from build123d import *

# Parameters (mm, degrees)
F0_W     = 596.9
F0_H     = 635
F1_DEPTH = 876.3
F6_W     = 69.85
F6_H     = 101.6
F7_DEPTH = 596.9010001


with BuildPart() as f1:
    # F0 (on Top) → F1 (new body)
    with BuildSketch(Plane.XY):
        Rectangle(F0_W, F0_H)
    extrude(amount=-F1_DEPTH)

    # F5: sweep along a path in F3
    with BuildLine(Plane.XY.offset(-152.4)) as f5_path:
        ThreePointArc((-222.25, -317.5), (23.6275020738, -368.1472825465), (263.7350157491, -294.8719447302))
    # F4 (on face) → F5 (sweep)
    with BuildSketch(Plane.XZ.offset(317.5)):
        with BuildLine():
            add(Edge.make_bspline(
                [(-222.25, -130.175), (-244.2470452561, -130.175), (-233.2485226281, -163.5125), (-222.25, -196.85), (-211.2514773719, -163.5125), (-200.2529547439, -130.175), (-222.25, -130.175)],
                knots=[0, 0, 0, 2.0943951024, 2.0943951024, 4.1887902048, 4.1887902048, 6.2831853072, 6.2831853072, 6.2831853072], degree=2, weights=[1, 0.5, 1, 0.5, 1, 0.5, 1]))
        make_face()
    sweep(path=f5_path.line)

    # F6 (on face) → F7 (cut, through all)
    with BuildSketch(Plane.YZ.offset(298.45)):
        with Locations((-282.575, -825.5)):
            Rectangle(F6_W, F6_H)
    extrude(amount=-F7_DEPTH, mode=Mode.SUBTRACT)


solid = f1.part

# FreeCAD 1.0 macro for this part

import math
import FreeCAD as App
import Part
import Sketcher
from FreeCAD import Vector
Q = App.Units.Quantity

doc = App.newDocument("Part")
body = doc.addObject("PartDesign::Body", "Body")

sketch1 = body.newObject("Sketcher::SketchObject", "Sketch")
sketch1.AttachmentSupport = (doc.getObject("XY_Plane"), [""])
sketch1.MapMode = "FlatFace"
sketch1.addGeometry([
    Part.LineSegment(Vector(-298, 318, 0), Vector(-298, -318, 0)),
    Part.LineSegment(Vector(-298, -318, 0), Vector(298, -318, 0)),
    Part.LineSegment(Vector(298, -318, 0), Vector(298, 318, 0)),
    Part.LineSegment(Vector(298, 318, 0), Vector(-298, 318, 0)),
], False)
sketch1.addConstraint([
    Sketcher.Constraint("Coincident", 0, 2, 1, 1),
    Sketcher.Constraint("Coincident", 1, 2, 2, 1),
    Sketcher.Constraint("Coincident", 2, 2, 3, 1),
    Sketcher.Constraint("Coincident", 3, 2, 0, 1),
    Sketcher.Constraint("Vertical", 0),
    Sketcher.Constraint("Horizontal", 1),
    Sketcher.Constraint("Vertical", 2),
    Sketcher.Constraint("Horizontal", 3),
    Sketcher.Constraint("Symmetric", 0, 2, 2, 2, -1, 1),
    Sketcher.Constraint("DistanceY", 0, 2, 0, 1, Q("25 in")),
    Sketcher.Constraint("DistanceX", 1, 1, 1, 2, Q("23.5 in")),
])
pad1 = body.newObject("PartDesign::Pad", "Pad")
pad1.Profile = sketch1
pad1.Length = Q("34.5 in")
pad1.Reversed = True

sketch2 = body.newObject("Sketcher::SketchObject", "Sketch001")
sketch2.AttachmentSupport = (doc.getObject("XZ_Plane"), [""])
sketch2.MapMode = "FlatFace"
sketch2.AttachmentOffset = App.Placement(Vector(0, 0, 12.5 * 25.4), App.Rotation())
sketch2.addGeometry(Part.BSplineCurve([Vector(-222.25, -130.175, 0), Vector(-244.247045, -130.175, 0), Vector(-233.248523, -163.5125, 0), Vector(-222.25, -196.85, 0), Vector(-211.251477, -163.5125, 0), Vector(-200.252955, -130.175, 0), Vector(-222.25, -130.175, 0)], [3, 2, 2, 3], [0, 2.094395102, 4.188790205, 6.283185307], False, 2, [1, 0.5, 1, 0.5, 1, 0.5, 1], False), False)
sketch2.addConstraint(Sketcher.Constraint("Block", 0))

sketch3 = body.newObject("Sketcher::SketchObject", "Sketch002")
sketch3.AttachmentSupport = (doc.getObject("XY_Plane"), [""])
sketch3.MapMode = "FlatFace"
sketch3.AttachmentOffset = App.Placement(Vector(0, 0, -6 * 25.4), App.Rotation())
sketch3.addGeometry(Part.ArcOfCircle(Part.Circle(Vector(0, 139, 0), Vector(0, 0, 1), 508), math.radians(-116), math.radians(-59)), False)
sketch3.addConstraint([
    Sketcher.Constraint("PointOnObject", 0, 3, -2),
    Sketcher.Constraint("Radius", 0, Q("20 in")),
    Sketcher.Constraint("DistanceY", 0, 1, -1, 1, Q("12.5 in")),
    Sketcher.Constraint("DistanceX", 0, 1, -1, 1, Q("8.75 in")),
    Sketcher.Constraint("DistanceY", 0, 2, 0, 3, Q("17.0934999 in")),
])
doc.recompute()

additivepipe = body.newObject("PartDesign::AdditivePipe", "AdditivePipe")
additivepipe.Profile = sketch2
additivepipe.Spine = (sketch3, ["Edge1"])

sketch4 = body.newObject("Sketcher::SketchObject", "Sketch003")
sketch4.AttachmentSupport = (doc.getObject("YZ_Plane"), [""])
sketch4.MapMode = "FlatFace"
sketch4.AttachmentOffset = App.Placement(Vector(0, 0, 11.75 * 25.4), App.Rotation())
sketch4.addGeometry([
    Part.LineSegment(Vector(-318, -775, 0), Vector(-318, -876, 0)),
    Part.LineSegment(Vector(-318, -876, 0), Vector(-248, -876, 0)),
    Part.LineSegment(Vector(-248, -876, 0), Vector(-248, -775, 0)),
    Part.LineSegment(Vector(-248, -775, 0), Vector(-318, -775, 0)),
], False)
sketch4.addConstraint([
    Sketcher.Constraint("Coincident", 0, 2, 1, 1),
    Sketcher.Constraint("Coincident", 1, 2, 2, 1),
    Sketcher.Constraint("Coincident", 2, 2, 3, 1),
    Sketcher.Constraint("Coincident", 3, 2, 0, 1),
    Sketcher.Constraint("Vertical", 0),
    Sketcher.Constraint("Horizontal", 1),
    Sketcher.Constraint("Vertical", 2),
    Sketcher.Constraint("Horizontal", 3),
    Sketcher.Constraint("DistanceY", 0, 2, 0, 1, Q("4 in")),
    Sketcher.Constraint("DistanceX", 1, 1, 1, 2, Q("2.75 in")),
    Sketcher.Constraint("DistanceX", 0, 2, -1, 1, Q("12.5 in")),
    Sketcher.Constraint("DistanceY", 0, 2, -1, 1, Q("34.5 in")),
])
pocket1 = body.newObject("PartDesign::Pocket", "Pocket")
pocket1.Profile = sketch4
pocket1.Type = "ThroughAll"

doc.recompute()
